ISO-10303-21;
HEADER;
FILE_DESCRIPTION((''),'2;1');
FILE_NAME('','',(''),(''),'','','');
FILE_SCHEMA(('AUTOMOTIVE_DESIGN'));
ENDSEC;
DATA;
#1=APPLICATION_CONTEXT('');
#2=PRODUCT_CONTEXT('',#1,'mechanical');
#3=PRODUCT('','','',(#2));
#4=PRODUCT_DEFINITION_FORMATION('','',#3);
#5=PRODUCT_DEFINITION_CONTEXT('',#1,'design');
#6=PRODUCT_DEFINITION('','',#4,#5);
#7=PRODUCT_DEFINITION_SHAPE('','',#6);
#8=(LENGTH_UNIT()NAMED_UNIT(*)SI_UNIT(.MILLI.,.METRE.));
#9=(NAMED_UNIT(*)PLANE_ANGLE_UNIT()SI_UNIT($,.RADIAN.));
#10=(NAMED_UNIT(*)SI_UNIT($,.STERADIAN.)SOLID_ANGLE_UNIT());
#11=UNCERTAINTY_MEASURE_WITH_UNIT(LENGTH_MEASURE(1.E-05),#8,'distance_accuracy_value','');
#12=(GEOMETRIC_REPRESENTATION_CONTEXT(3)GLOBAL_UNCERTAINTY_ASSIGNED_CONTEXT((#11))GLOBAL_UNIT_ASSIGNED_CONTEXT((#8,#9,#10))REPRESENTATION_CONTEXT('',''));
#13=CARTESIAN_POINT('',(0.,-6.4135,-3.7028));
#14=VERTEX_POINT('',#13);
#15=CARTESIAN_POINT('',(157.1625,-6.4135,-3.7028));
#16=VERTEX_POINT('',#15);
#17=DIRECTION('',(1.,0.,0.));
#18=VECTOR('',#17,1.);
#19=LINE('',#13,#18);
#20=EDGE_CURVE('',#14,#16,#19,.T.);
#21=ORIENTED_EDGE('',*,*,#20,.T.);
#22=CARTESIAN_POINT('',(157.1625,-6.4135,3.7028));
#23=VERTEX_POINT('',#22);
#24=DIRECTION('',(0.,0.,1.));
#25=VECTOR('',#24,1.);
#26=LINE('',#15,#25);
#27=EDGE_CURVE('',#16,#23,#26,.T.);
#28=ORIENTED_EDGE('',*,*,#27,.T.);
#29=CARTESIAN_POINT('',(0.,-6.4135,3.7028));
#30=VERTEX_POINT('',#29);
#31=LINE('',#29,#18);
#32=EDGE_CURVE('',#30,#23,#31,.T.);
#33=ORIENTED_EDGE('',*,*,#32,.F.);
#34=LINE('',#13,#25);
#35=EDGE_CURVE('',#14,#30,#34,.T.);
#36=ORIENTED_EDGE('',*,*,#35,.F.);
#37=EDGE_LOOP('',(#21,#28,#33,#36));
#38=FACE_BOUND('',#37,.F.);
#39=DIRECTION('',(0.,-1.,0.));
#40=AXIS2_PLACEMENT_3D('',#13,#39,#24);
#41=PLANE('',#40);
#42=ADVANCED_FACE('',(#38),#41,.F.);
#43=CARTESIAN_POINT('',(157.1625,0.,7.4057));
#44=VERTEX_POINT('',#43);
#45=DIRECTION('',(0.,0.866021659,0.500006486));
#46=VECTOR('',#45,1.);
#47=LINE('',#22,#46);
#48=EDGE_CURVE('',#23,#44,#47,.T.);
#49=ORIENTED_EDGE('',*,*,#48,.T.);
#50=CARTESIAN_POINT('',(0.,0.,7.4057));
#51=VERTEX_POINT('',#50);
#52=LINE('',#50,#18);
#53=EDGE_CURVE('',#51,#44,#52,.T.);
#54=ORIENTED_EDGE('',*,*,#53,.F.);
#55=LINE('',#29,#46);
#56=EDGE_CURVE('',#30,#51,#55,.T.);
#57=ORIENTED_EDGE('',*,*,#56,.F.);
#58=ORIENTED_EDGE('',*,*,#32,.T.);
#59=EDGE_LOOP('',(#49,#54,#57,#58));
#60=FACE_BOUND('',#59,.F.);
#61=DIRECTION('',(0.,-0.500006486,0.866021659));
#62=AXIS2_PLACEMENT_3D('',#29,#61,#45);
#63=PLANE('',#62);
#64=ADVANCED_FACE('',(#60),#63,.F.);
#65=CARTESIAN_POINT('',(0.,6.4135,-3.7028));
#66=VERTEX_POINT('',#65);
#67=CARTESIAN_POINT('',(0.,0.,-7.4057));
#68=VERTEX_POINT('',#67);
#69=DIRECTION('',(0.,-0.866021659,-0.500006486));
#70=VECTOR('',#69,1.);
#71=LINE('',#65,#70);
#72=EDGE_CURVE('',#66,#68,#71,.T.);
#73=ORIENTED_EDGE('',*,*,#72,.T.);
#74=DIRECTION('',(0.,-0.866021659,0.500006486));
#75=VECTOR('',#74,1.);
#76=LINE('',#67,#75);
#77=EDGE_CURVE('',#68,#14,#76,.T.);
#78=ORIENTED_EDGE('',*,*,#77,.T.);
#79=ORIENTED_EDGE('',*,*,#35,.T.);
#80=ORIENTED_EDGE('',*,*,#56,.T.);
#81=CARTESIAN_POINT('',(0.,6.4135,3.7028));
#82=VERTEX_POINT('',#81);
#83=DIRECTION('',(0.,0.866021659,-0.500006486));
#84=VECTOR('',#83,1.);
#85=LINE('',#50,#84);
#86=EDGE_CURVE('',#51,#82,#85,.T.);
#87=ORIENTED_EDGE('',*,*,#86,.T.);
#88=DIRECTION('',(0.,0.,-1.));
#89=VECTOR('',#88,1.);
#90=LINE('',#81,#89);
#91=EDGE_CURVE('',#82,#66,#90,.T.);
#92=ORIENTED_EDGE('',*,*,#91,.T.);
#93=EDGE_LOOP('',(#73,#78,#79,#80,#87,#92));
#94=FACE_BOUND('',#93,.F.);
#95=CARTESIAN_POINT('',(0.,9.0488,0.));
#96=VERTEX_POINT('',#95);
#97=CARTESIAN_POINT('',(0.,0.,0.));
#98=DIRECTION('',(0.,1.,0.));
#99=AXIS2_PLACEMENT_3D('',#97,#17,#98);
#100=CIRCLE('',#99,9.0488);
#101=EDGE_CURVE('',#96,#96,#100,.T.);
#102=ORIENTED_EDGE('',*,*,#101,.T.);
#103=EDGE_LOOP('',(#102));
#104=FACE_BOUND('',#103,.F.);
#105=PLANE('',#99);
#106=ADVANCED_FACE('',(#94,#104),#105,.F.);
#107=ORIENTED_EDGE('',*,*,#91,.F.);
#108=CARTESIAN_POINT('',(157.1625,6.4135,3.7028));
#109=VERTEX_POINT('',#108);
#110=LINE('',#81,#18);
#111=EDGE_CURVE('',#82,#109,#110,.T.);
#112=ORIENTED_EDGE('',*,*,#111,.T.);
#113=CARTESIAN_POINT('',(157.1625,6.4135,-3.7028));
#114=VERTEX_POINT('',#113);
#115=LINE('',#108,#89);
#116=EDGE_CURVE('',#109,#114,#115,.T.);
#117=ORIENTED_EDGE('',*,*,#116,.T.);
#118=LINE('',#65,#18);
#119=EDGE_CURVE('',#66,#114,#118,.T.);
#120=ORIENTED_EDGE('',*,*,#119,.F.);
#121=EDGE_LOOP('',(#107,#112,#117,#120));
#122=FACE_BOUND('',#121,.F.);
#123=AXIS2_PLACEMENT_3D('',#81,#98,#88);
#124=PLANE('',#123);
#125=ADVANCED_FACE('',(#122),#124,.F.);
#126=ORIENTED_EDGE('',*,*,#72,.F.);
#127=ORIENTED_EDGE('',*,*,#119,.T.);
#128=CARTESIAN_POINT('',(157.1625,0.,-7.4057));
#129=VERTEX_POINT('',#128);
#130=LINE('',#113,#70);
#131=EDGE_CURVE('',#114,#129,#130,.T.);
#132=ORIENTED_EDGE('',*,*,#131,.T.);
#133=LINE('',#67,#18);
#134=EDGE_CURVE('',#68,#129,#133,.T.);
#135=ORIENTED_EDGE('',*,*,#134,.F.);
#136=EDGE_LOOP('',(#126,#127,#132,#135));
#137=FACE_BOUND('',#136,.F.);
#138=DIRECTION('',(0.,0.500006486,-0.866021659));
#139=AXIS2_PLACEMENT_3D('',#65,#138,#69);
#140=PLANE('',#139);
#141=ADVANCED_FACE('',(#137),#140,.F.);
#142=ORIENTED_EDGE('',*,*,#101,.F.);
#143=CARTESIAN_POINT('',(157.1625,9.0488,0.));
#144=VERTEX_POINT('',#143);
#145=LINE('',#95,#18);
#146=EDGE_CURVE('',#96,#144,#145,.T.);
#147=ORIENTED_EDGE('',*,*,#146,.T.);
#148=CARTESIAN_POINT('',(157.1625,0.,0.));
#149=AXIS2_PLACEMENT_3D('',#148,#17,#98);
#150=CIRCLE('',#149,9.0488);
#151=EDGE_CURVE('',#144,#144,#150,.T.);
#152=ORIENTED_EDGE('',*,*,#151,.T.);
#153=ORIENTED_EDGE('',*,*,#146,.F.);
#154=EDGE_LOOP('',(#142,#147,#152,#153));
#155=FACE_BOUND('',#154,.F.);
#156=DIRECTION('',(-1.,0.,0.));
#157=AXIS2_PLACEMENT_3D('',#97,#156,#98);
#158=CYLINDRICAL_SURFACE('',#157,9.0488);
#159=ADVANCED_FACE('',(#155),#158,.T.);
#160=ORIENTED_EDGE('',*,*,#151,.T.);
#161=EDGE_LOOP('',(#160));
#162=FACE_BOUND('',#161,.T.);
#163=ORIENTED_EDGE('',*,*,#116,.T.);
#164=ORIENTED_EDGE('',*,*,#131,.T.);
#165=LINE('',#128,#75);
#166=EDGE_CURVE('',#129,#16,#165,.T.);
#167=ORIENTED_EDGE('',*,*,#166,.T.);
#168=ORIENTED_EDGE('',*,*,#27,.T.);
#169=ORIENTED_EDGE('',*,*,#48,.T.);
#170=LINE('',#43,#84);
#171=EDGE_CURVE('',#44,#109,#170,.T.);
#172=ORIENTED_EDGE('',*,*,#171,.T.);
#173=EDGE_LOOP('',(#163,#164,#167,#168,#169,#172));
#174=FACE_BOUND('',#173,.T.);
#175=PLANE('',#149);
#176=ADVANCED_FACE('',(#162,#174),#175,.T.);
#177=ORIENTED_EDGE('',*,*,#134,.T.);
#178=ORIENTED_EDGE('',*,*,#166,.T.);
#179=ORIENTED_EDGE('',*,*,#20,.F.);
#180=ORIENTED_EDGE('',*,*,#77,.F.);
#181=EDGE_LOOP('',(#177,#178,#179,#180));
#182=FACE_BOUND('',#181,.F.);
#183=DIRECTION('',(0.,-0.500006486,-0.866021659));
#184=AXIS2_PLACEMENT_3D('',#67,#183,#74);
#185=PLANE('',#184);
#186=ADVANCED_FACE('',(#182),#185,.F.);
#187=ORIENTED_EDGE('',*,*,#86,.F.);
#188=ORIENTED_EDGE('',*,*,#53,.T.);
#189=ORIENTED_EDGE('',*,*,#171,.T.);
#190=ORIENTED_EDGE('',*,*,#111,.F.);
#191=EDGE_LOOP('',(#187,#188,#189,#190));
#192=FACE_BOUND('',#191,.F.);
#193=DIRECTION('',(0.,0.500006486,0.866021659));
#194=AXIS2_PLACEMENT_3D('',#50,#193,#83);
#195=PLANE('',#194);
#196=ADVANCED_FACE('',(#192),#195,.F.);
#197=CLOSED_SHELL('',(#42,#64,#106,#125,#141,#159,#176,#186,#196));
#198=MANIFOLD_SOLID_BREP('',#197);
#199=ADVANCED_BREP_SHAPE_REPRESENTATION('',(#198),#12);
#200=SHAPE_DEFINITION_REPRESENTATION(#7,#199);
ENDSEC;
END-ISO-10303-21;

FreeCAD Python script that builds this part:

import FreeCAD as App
import Part
import Sketcher
Q = App.Units.Quantity


def add_polygon(sketch, points):
    """Adds a closed chain of lines whose ends are joined by coincident constraints."""
    first, n = sketch.GeometryCount, len(points)
    for a, b in zip(points, points[1:] + points[:1]):
        sketch.addGeometry(Part.LineSegment(App.Vector(*a, 0), App.Vector(*b, 0)), False)
    for i in range(n):
        sketch.addConstraint(Sketcher.Constraint("Coincident", first + i, 2, first + (i + 1) % n, 1))

doc = App.newDocument("Part")
body = doc.addObject("PartDesign::Body", "Body")

sketch1 = body.newObject("Sketcher::SketchObject", "Sketch")
sketch1.AttachmentSupport = (doc.getObject("YZ_Plane"), [""])
sketch1.MapMode = "FlatFace"
sketch1.addGeometry(Part.Circle(App.Vector(0, 0, 0), App.Vector(0, 0, 1), 9.0488), False)
add_polygon(sketch1, [(0, -7.4057), (-6.4135, -3.7028), (-6.4135, 3.7028), (0, 7.4057), (6.4135, 3.7028), (6.4135, -3.7028)])
sketch1.addConstraint(Sketcher.Constraint("Vertical", 2))
sketch1.addConstraint(Sketcher.Constraint("Vertical", 5))
sketch1.addConstraint(Sketcher.Constraint("Coincident", 0, 3, -1, 1))
sketch1.addConstraint(Sketcher.Constraint("Symmetric", 1, 2, 4, 2, -1, 1))
sketch1.addConstraint(Sketcher.Constraint("Symmetric", 3, 2, 6, 2, -1, 1))
sketch1.addConstraint(Sketcher.Constraint("PointOnObject", 3, 2, -2))
sketch1.addConstraint(Sketcher.Constraint("Parallel", 3, 6))
sketch1.addConstraint(Sketcher.Constraint("Horizontal", 2, 2, 4, 2))
sketch1.addConstraint(Sketcher.Constraint("Diameter", 0, Q("0.7125 in")))
sketch1.addConstraint(Sketcher.Constraint("Angle", 1, Q("149.9996 deg")))
sketch1.addConstraint(Sketcher.Constraint("DistanceX", 2, 2, 4, 2, Q("0.505 in")))
sketch1.addConstraint(Sketcher.Constraint("DistanceY", 2, 1, 2, 2, 7.4056))
pad1 = body.newObject("PartDesign::Pad", "Pad")
pad1.Profile = sketch1
pad1.Length = Q("6.1875 in")

doc.recompute()
